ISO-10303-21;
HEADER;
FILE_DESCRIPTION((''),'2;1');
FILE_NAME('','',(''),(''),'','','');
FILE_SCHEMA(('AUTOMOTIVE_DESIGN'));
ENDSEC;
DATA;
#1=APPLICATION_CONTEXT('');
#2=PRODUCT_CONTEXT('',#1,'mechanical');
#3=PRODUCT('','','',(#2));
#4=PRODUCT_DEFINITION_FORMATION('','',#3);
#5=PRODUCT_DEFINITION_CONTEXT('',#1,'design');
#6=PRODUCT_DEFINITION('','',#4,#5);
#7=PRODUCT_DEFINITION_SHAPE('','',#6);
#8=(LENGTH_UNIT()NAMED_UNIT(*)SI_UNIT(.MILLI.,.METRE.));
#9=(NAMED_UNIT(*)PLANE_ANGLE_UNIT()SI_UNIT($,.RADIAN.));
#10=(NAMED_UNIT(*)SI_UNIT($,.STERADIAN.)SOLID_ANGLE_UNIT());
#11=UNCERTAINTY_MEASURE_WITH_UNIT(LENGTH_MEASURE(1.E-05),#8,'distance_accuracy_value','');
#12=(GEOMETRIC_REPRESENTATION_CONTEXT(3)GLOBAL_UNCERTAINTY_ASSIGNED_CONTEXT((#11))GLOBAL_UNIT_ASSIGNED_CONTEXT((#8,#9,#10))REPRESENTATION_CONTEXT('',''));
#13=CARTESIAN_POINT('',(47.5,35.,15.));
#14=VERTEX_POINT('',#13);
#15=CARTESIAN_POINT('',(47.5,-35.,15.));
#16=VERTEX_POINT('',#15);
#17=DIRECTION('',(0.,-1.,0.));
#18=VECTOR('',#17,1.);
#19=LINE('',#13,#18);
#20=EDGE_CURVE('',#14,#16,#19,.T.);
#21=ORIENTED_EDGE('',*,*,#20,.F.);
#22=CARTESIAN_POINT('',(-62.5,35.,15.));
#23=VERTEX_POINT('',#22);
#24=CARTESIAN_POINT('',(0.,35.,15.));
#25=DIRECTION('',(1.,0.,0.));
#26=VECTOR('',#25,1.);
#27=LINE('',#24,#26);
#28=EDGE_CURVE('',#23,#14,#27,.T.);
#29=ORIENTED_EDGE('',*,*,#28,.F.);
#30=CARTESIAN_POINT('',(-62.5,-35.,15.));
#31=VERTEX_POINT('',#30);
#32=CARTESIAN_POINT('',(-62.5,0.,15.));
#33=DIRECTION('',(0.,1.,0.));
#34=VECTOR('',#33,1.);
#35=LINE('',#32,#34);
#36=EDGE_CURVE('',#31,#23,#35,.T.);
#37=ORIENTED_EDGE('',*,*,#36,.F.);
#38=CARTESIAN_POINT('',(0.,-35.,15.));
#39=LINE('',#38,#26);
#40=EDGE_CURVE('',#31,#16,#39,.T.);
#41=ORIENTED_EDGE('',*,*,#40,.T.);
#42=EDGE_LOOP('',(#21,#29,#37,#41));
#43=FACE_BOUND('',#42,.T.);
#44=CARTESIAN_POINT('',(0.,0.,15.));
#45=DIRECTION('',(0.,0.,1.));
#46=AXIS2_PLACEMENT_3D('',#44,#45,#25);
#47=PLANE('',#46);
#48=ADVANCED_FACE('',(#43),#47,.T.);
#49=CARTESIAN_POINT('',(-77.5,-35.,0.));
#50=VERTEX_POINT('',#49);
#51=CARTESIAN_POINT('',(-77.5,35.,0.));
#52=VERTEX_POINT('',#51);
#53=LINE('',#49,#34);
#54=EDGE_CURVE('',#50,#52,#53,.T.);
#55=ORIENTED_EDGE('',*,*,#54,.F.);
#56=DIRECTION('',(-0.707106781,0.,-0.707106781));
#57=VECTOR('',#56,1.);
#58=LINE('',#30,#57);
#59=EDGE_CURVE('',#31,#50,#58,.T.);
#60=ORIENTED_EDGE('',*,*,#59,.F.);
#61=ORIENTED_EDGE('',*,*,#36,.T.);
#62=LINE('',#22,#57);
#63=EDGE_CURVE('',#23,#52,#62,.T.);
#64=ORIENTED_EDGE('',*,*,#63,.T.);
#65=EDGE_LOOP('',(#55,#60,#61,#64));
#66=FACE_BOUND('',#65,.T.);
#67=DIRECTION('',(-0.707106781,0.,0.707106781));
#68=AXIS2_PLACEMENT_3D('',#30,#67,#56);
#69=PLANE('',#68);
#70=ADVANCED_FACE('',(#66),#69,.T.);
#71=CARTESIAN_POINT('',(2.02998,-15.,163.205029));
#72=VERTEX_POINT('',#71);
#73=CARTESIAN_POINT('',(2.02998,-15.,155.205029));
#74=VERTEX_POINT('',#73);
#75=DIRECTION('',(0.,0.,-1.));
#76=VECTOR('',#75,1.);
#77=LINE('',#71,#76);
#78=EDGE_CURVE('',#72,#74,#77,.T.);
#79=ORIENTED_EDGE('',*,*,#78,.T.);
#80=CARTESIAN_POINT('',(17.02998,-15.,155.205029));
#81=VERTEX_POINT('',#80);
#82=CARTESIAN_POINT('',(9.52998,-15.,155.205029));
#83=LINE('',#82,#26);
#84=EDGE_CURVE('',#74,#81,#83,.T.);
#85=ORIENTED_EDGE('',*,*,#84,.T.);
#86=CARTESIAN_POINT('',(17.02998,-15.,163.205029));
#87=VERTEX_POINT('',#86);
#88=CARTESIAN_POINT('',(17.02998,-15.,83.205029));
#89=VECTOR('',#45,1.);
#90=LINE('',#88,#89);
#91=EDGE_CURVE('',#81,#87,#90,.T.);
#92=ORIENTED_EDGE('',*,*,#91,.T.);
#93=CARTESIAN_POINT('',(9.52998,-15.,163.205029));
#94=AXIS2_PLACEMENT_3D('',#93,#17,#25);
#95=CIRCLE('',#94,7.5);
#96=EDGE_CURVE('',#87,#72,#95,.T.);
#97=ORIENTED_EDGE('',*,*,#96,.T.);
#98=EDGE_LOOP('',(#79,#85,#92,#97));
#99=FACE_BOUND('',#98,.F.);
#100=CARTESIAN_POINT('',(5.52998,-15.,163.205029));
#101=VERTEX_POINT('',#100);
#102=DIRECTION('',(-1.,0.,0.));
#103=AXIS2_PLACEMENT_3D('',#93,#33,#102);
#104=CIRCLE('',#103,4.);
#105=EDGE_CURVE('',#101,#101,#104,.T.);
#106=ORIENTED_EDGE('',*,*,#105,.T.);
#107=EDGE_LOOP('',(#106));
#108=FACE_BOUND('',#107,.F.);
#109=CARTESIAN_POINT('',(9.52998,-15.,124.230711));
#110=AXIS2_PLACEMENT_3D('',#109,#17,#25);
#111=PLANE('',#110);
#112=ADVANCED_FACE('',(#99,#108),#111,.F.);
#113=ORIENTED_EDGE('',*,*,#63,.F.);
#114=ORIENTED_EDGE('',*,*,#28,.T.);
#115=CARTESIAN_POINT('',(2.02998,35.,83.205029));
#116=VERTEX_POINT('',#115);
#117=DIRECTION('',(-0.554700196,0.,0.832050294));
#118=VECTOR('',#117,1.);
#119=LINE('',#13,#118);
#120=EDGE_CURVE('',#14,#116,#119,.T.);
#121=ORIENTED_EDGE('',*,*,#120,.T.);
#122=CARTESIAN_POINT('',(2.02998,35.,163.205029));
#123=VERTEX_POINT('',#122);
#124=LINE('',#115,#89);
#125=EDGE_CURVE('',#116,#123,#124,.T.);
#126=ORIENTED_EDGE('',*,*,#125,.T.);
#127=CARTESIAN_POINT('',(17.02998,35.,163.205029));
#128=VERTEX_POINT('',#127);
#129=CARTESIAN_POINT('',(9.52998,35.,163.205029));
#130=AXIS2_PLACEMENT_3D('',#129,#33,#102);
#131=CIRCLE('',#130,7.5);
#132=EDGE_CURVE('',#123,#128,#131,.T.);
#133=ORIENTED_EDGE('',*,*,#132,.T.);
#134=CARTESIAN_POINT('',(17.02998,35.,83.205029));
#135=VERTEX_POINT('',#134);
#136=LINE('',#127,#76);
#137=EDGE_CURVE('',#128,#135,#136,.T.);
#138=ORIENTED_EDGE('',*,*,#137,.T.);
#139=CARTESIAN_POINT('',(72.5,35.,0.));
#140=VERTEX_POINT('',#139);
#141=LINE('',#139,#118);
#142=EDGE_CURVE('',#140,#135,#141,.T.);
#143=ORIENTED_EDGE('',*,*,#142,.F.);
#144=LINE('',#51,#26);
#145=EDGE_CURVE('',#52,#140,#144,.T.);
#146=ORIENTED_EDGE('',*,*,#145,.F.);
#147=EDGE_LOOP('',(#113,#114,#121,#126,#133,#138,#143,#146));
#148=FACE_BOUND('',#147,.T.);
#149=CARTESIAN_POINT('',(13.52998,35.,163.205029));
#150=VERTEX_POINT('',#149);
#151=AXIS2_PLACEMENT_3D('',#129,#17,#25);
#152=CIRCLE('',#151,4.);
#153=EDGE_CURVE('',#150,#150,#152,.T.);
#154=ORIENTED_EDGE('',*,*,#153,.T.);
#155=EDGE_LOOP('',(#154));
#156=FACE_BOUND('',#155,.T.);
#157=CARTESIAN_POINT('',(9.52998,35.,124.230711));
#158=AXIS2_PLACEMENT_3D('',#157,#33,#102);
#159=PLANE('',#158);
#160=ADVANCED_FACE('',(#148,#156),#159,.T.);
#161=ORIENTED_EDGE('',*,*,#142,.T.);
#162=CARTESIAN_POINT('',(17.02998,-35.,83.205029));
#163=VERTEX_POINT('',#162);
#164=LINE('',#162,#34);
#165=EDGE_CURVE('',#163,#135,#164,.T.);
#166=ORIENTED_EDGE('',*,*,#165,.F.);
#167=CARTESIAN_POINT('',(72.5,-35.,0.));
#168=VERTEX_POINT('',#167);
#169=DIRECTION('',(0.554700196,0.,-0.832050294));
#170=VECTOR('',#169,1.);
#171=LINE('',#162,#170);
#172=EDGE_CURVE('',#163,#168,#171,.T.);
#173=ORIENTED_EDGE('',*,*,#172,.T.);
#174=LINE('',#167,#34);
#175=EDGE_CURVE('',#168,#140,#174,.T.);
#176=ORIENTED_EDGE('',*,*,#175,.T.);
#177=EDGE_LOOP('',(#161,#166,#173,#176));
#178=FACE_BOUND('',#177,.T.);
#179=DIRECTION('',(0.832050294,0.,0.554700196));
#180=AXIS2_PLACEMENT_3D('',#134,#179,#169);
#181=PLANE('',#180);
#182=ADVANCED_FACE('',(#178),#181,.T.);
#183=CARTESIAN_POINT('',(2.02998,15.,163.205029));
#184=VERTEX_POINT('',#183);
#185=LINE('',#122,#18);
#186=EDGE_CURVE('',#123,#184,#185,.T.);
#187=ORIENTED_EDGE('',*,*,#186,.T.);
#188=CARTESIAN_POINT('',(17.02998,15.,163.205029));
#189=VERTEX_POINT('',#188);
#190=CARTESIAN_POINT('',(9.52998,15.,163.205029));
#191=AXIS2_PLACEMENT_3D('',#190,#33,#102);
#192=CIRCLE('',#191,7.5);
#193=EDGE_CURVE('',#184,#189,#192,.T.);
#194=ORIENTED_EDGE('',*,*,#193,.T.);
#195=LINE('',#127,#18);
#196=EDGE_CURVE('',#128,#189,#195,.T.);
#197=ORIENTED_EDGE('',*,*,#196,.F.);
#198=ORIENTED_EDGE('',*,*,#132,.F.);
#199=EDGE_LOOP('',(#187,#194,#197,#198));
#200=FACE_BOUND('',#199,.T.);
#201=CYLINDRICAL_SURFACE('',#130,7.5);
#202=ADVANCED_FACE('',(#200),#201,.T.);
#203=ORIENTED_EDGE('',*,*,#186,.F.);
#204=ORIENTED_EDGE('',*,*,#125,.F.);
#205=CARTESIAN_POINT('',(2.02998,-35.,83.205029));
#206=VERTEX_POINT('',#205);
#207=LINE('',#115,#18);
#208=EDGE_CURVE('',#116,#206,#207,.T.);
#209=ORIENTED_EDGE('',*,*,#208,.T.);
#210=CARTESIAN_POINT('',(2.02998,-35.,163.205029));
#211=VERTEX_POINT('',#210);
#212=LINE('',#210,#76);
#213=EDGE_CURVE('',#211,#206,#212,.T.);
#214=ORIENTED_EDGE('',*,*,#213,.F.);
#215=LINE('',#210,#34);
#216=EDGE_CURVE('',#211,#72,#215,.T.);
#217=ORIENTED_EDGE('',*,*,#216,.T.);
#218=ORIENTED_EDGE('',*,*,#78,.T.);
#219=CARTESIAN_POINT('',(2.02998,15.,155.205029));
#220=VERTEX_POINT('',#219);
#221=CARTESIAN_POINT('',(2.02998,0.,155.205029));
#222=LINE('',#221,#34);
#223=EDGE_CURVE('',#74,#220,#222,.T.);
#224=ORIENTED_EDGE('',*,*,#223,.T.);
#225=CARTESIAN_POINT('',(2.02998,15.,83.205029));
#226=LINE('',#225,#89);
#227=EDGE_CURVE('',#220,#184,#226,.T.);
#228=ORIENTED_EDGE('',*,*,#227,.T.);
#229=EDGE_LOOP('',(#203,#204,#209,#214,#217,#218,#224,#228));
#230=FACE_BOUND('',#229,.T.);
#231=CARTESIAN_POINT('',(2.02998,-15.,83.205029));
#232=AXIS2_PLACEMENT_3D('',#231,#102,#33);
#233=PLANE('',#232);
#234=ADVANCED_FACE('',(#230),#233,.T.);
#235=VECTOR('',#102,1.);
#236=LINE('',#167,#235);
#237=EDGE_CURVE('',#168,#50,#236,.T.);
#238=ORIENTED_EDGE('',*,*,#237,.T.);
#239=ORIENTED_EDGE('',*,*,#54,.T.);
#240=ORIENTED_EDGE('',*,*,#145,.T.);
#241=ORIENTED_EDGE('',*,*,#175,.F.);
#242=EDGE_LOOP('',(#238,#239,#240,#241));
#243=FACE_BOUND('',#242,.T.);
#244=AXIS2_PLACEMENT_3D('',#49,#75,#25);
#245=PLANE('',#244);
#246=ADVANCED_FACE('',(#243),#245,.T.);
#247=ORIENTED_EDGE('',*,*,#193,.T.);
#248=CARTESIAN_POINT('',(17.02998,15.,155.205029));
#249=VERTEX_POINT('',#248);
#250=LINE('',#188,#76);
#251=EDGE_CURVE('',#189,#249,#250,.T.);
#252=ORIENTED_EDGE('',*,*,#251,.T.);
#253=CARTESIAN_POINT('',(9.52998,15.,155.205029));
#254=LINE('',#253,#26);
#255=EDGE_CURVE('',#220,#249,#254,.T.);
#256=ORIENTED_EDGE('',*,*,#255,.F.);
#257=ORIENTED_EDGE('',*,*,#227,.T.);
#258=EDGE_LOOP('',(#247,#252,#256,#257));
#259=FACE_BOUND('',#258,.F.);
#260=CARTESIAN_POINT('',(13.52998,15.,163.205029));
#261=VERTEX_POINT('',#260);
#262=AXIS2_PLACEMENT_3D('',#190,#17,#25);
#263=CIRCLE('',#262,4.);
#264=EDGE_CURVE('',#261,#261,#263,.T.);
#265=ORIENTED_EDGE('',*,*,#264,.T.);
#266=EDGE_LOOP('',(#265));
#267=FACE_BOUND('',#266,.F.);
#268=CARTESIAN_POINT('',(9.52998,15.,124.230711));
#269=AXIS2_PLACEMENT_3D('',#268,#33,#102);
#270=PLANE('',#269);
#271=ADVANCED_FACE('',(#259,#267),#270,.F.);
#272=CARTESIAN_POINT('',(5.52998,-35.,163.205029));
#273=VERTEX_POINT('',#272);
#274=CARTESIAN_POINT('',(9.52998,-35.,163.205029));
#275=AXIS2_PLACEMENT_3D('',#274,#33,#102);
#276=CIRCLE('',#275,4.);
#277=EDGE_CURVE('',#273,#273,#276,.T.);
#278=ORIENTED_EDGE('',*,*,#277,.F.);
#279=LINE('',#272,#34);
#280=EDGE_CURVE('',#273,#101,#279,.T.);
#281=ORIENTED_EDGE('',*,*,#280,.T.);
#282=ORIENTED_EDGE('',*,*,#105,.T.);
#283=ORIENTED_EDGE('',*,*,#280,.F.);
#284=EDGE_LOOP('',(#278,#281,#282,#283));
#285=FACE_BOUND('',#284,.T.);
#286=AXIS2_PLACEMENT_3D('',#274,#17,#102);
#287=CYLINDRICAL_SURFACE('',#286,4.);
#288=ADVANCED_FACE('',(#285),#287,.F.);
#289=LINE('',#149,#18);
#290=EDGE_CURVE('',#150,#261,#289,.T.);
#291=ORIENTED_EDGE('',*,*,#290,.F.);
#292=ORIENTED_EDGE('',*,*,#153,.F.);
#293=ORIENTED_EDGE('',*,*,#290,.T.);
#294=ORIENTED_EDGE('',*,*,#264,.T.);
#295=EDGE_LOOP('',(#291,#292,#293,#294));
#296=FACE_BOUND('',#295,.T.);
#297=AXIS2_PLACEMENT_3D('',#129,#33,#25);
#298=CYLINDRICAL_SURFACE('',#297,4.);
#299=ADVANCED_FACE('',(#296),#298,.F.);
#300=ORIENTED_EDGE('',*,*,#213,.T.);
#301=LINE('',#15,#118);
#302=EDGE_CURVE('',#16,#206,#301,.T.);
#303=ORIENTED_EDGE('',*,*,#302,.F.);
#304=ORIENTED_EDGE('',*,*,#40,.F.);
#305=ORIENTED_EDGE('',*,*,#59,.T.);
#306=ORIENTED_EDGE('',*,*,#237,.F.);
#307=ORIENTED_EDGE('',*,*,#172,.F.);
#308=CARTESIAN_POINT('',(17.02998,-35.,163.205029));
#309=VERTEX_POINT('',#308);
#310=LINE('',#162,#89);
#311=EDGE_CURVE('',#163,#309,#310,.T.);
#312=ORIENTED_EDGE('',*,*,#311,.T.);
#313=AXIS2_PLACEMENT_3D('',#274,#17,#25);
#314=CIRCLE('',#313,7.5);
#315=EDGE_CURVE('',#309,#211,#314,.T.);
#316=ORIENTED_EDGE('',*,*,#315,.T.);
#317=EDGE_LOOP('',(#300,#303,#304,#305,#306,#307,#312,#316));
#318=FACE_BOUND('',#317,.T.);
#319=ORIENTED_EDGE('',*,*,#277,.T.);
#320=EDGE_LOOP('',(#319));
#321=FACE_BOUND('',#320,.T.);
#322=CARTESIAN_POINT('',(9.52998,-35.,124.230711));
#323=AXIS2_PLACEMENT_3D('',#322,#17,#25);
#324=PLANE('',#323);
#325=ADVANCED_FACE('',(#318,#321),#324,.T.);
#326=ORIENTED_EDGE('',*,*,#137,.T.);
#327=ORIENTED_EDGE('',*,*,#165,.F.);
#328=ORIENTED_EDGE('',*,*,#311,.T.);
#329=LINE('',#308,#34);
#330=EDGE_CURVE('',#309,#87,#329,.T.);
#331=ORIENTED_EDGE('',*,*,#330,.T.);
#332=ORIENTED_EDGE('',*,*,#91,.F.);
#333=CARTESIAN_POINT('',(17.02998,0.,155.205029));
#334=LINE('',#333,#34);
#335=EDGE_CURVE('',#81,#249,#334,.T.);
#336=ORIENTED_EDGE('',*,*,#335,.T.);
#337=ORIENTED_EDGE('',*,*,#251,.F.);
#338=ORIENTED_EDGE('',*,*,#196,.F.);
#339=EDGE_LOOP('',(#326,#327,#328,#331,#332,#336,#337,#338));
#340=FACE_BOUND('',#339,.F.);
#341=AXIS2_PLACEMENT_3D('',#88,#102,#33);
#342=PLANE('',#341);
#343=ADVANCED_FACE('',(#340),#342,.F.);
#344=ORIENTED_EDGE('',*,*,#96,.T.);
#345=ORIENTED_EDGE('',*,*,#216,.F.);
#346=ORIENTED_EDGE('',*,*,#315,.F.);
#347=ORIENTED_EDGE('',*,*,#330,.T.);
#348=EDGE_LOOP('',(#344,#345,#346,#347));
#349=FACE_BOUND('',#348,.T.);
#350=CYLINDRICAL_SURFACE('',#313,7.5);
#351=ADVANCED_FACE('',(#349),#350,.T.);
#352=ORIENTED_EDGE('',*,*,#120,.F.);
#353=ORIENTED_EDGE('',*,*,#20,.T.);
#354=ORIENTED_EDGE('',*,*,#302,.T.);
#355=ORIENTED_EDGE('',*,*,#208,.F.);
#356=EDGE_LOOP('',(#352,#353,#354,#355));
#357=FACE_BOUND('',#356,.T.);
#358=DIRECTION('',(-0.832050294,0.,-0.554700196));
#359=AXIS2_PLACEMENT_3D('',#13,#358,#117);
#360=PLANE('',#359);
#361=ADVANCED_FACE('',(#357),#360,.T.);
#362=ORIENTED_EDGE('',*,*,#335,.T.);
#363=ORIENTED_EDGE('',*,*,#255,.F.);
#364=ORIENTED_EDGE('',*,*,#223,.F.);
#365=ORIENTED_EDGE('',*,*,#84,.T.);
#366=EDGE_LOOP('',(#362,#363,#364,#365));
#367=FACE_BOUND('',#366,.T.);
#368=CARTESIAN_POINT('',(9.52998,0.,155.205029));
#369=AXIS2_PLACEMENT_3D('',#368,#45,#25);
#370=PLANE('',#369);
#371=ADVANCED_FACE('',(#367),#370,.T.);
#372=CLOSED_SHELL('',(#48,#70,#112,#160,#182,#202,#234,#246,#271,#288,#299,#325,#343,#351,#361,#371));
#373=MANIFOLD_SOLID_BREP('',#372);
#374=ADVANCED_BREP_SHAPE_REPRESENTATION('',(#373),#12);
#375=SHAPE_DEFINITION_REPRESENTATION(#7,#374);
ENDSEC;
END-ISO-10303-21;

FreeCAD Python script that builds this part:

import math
import FreeCAD as App
import Part
import Sketcher
Q = App.Units.Quantity


def add_polygon(sketch, points):
    """Adds a closed chain of lines whose ends are joined by coincident constraints."""
    first, n = sketch.GeometryCount, len(points)
    for a, b in zip(points, points[1:] + points[:1]):
        sketch.addGeometry(Part.LineSegment(App.Vector(*a, 0), App.Vector(*b, 0)), False)
    for i in range(n):
        sketch.addConstraint(Sketcher.Constraint("Coincident", first + i, 2, first + (i + 1) % n, 1))

doc = App.newDocument("Part")
body = doc.addObject("PartDesign::Body", "Body")

# Sketch on XY plane
sketch1 = body.newObject("Sketcher::SketchObject", "Sketch")
sketch1.AttachmentSupport = (doc.getObject("XY_Plane"), [""])
sketch1.MapMode = "FlatFace"
add_polygon(sketch1, [(-62, 35), (-62, -35), (62, -35), (62, 35)])  # lines 0-3
sketch1.addConstraint([
    Sketcher.Constraint("Vertical", 0),
    Sketcher.Constraint("Horizontal", 1),
    Sketcher.Constraint("Vertical", 2),
    Sketcher.Constraint("Horizontal", 3),
    Sketcher.Constraint("Symmetric", 0, 2, 2, 2, -1, 1),
    Sketcher.Constraint("DistanceX", 1, 1, 1, 2, Q("125 mm")),
    Sketcher.Constraint("DistanceY", 0, 2, 0, 1, Q("70 mm")),
])
pad1 = body.newObject("PartDesign::Pad", "Pad")
pad1.Profile = sketch1
pad1.Length = 15

# Sketch on XZ plane
sketch2 = body.newObject("Sketcher::SketchObject", "Sketch001")
sketch2.AttachmentSupport = (doc.getObject("XZ_Plane"), [""])
sketch2.MapMode = "FlatFace"
sketch2.AttachmentOffset = App.Placement(App.Vector(0, 0, 35), App.Rotation())
add_polygon(sketch2, [(62, 15), (62, 0), (72, 0)])  # lines 0-2
sketch2.addConstraint([
    Sketcher.Constraint("Vertical", 0),
    Sketcher.Constraint("Horizontal", 1),
    Sketcher.Constraint("PointOnObject", 0, 2, -1),
    Sketcher.Constraint("DistanceX", 1, 1, 1, 2, Q("10 mm")),
    Sketcher.Constraint("DistanceY", 0, 2, 0, 1, Q("15 mm")),
    Sketcher.Constraint("DistanceX", -1, 1, 0, 2, Q("62.5 mm")),
])
pad2 = body.newObject("PartDesign::Pad", "Pad001")
pad2.Profile = sketch2
pad2.Length = 70
pad2.Reversed = True

# Sketch on XZ plane
sketch3 = body.newObject("Sketcher::SketchObject", "Sketch002")
sketch3.AttachmentSupport = (doc.getObject("XZ_Plane"), [""])
sketch3.MapMode = "FlatFace"
sketch3.AttachmentOffset = App.Placement(App.Vector(0, 0, 35), App.Rotation())
add_polygon(sketch3, [(-78, 0), (-62, 0), (-62, 15)])  # lines 0-2
sketch3.addConstraint([
    Sketcher.Constraint("Horizontal", 0),
    Sketcher.Constraint("Vertical", 1),
    Sketcher.Constraint("PointOnObject", 0, 2, -1),
    Sketcher.Constraint("Equal", 0, 1),
    Sketcher.Constraint("DistanceX", 0, 1, 0, 2, Q("15 mm")),
    Sketcher.Constraint("DistanceX", 0, 2, -1, 1, Q("62.5 mm")),
])
pad3 = body.newObject("PartDesign::Pad", "Pad002")
pad3.Profile = sketch3
pad3.Length = 70
pad3.Reversed = True

# Sketch on XZ plane
sketch4 = body.newObject("Sketcher::SketchObject", "Sketch003")
sketch4.AttachmentSupport = (doc.getObject("XZ_Plane"), [""])
sketch4.MapMode = "FlatFace"
sketch4.AttachmentOffset = App.Placement(App.Vector(0, 0, -35), App.Rotation())
add_polygon(sketch4, [(17, 83), (62, 15), (48, 15), (2, 83)])  # lines 0-3
sketch4.addConstraint([
    Sketcher.Constraint("Horizontal", 1),
    Sketcher.Constraint("Horizontal", 3),
    Sketcher.Constraint("Parallel", 0, 2),
    Sketcher.Constraint("DistanceX", 1, 2, 1, 1, Q("15 mm")),
    Sketcher.Constraint("DistanceY", -1, 1, 0, 2, Q("15 mm")),
    Sketcher.Constraint("DistanceX", -1, 1, 0, 2, Q("62.5 mm")),
    Sketcher.Constraint("DistanceX", -1, 1, 2, 2, Q("2.02998 mm")),
    Sketcher.Constraint("DistanceY", -1, 1, 2, 2, Q("83.205029 mm")),
])
pad4 = body.newObject("PartDesign::Pad", "Pad003")
pad4.Profile = sketch4
pad4.Length = 70

# Sketch on XZ plane
sketch5 = body.newObject("Sketcher::SketchObject", "Sketch004")
sketch5.AttachmentSupport = (doc.getObject("XZ_Plane"), [""])
sketch5.MapMode = "FlatFace"
sketch5.AttachmentOffset = App.Placement(App.Vector(0, 0, 35), App.Rotation())
sketch5.addGeometry([
    Part.LineSegment(App.Vector(2, 163.2, 0), App.Vector(2, 83.2, 0)),  # 0
    Part.LineSegment(App.Vector(2, 83.2, 0), App.Vector(17, 83.2, 0)),  # 1
    Part.LineSegment(App.Vector(17, 83.2, 0), App.Vector(17, 163.2, 0)),  # 2
    Part.ArcOfCircle(Part.Circle(App.Vector(9.5, 163.2, 0), App.Vector(0, 0, 1), 7.5), math.radians(0), math.radians(180)),  # 3
    Part.Circle(App.Vector(9.5, 163.2, 0), App.Vector(0, 0, 1), 4),  # 4
], False)
sketch5.addConstraint([
    Sketcher.Constraint("Coincident", 0, 2, 1, 1),
    Sketcher.Constraint("Coincident", 1, 2, 2, 1),
    Sketcher.Constraint("Tangent", 2, 2, 3, 1),
    Sketcher.Constraint("Tangent", 3, 2, 0, 1),
    Sketcher.Constraint("Vertical", 0),
    Sketcher.Constraint("Horizontal", 1),
    Sketcher.Constraint("Vertical", 2),
    Sketcher.Constraint("Coincident", 4, 3, 3, 3),
    Sketcher.Constraint("Diameter", 4, Q("8 mm")),
    Sketcher.Constraint("Radius", 3, Q("7.5 mm")),
    Sketcher.Constraint("DistanceY", 0, 2, 0, 1, Q("80 mm")),
    Sketcher.Constraint("DistanceX", -1, 1, 3, 3, Q("9.52998 mm")),
    Sketcher.Constraint("DistanceY", -1, 1, 3, 3, Q("163.205029 mm")),
])
pad5 = body.newObject("PartDesign::Pad", "Pad004")
pad5.Profile = sketch5
pad5.Length = 20
pad5.Reversed = True

# Sketch on XZ plane
sketch6 = body.newObject("Sketcher::SketchObject", "Sketch005")
sketch6.AttachmentSupport = (doc.getObject("XZ_Plane"), [""])
sketch6.MapMode = "FlatFace"
sketch6.AttachmentOffset = App.Placement(App.Vector(0, 0, -35), App.Rotation())
sketch6.addGeometry([
    Part.LineSegment(App.Vector(17, 163.2, 0), App.Vector(17, 83.2, 0)),  # 0
    Part.LineSegment(App.Vector(17, 83.2, 0), App.Vector(2, 83.2, 0)),  # 1
    Part.LineSegment(App.Vector(2, 83.2, 0), App.Vector(2, 163.2, 0)),  # 2
    Part.ArcOfCircle(Part.Circle(App.Vector(9.5, 163.2, 0), App.Vector(0, 0, 1), 7.5), math.radians(0), math.radians(180)),  # 3
    Part.Circle(App.Vector(9.5, 163.2, 0), App.Vector(0, 0, 1), 4),  # 4
], False)
sketch6.addConstraint([
    Sketcher.Constraint("Coincident", 0, 2, 1, 1),
    Sketcher.Constraint("Coincident", 1, 2, 2, 1),
    Sketcher.Constraint("Tangent", 2, 2, 3, 2),
    Sketcher.Constraint("Tangent", 3, 1, 0, 1),
    Sketcher.Constraint("Vertical", 0),
    Sketcher.Constraint("Horizontal", 1),
    Sketcher.Constraint("Vertical", 2),
    Sketcher.Constraint("Coincident", 4, 3, 3, 3),
    Sketcher.Constraint("Diameter", 4, Q("8 mm")),
    Sketcher.Constraint("Radius", 3, Q("7.5 mm")),
    Sketcher.Constraint("DistanceY", 0, 2, 0, 1, Q("80 mm")),
    Sketcher.Constraint("DistanceX", -1, 1, 3, 3, Q("9.52998 mm")),
    Sketcher.Constraint("DistanceY", -1, 1, 3, 3, Q("163.205029 mm")),
])
pad6 = body.newObject("PartDesign::Pad", "Pad005")
pad6.Profile = sketch6
pad6.Length = 20

# Sketch on XY plane
sketch7 = body.newObject("Sketcher::SketchObject", "Sketch006")
sketch7.AttachmentSupport = (doc.getObject("XY_Plane"), [""])
sketch7.MapMode = "FlatFace"
sketch7.AttachmentOffset = App.Placement(App.Vector(0, 0, 83.205029), App.Rotation())
add_polygon(sketch7, [(2, 15), (2, -15), (17, -15), (17, 15)])  # lines 0-3
sketch7.addConstraint([
    Sketcher.Constraint("Vertical", 0),
    Sketcher.Constraint("Horizontal", 1),
    Sketcher.Constraint("Vertical", 2),
    Sketcher.Constraint("Horizontal", 3),
    Sketcher.Constraint("DistanceX", 1, 1, 1, 2, Q("15 mm")),
    Sketcher.Constraint("DistanceY", 0, 2, 0, 1, Q("30 mm")),
    Sketcher.Constraint("DistanceY", 0, 2, -1, 1, Q("15 mm")),
    Sketcher.Constraint("DistanceX", -1, 1, 0, 2, Q("2.02998 mm")),
])
pad7 = body.newObject("PartDesign::Pad", "Pad006")
pad7.Profile = sketch7
pad7.Length = 72

doc.recompute()
